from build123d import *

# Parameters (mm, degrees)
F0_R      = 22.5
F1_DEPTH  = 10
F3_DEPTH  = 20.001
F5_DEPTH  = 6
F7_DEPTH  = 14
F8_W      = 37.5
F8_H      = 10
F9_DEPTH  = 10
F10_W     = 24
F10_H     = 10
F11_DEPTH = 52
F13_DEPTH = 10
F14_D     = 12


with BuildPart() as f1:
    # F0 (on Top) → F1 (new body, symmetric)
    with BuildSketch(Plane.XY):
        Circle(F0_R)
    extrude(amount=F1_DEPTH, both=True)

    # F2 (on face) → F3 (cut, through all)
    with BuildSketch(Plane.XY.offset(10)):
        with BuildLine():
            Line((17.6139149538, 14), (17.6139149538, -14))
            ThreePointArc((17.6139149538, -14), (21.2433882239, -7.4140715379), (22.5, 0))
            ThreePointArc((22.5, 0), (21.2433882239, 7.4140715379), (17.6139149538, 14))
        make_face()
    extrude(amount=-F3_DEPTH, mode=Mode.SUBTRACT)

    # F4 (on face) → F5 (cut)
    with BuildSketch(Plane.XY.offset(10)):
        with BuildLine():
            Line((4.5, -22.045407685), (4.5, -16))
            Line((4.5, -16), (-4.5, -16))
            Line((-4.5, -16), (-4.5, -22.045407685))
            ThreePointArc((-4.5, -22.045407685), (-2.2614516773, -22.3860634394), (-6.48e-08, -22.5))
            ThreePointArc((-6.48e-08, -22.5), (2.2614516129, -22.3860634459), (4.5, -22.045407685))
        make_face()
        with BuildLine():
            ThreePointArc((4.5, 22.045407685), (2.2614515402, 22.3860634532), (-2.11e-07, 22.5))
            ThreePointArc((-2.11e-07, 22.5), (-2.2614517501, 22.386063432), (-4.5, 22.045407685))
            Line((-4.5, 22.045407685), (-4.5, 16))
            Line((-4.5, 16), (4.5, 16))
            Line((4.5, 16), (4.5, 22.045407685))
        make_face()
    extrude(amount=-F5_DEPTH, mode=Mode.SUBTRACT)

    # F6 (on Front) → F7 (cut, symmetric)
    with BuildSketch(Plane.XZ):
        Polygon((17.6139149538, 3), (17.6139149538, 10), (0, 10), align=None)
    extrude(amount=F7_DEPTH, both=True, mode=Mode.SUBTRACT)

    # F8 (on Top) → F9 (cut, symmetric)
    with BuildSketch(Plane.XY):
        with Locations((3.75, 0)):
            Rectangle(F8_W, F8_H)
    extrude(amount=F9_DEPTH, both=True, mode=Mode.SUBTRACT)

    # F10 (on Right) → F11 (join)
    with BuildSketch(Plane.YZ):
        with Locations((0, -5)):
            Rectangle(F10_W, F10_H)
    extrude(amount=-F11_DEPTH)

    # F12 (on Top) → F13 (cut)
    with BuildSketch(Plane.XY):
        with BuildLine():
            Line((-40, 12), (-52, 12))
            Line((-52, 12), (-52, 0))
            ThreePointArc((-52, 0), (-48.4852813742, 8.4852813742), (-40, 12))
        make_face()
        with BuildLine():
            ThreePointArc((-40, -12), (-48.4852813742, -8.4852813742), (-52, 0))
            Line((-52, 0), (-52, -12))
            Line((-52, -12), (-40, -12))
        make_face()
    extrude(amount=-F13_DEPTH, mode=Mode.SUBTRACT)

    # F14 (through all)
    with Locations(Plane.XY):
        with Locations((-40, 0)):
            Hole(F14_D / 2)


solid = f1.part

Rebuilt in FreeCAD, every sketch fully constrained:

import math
import FreeCAD as App
import Part
import Sketcher
from FreeCAD import Vector

doc = App.newDocument("Part")
body = doc.addObject("PartDesign::Body", "Body")

# Sketch on XY plane
sketch1 = body.newObject("Sketcher::SketchObject", "Sketch")
sketch1.AttachmentSupport = (doc.getObject("XY_Plane"), [""])
sketch1.MapMode = "FlatFace"
sketch1.addGeometry(Part.Circle(Vector(0, 0, 0), Vector(0, 0, 1), 22), False)
sketch1.addConstraint([
    Sketcher.Constraint("Coincident", 0, 3, -1, 1),
    Sketcher.Constraint("Diameter", 0, 45.0),
])
pad1 = body.newObject("PartDesign::Pad", "Pad")
pad1.Profile = sketch1
pad1.Length = 20
pad1.Midplane = True

# Sketch on XY plane
sketch2 = body.newObject("Sketcher::SketchObject", "Sketch001")
sketch2.AttachmentSupport = (doc.getObject("XY_Plane"), [""])
sketch2.MapMode = "FlatFace"
sketch2.AttachmentOffset = App.Placement(Vector(0, 0, 10), App.Rotation())
sketch2.addGeometry([
    Part.LineSegment(Vector(18, 14, 0), Vector(18, -14, 0)),
    Part.ArcOfCircle(Part.Circle(Vector(0, 0, 0), Vector(0, 0, 1), 22), math.radians(-38), math.radians(0)),
    Part.ArcOfCircle(Part.Circle(Vector(0, 0, 0), Vector(0, 0, 1), 22), math.radians(0), math.radians(38)),
], False)
sketch2.addConstraint([
    Sketcher.Constraint("Coincident", 0, 2, 1, 1),
    Sketcher.Constraint("Tangent", 1, 2, 2, 1),
    Sketcher.Constraint("Coincident", 2, 2, 0, 1),
    Sketcher.Constraint("Vertical", 0),
    Sketcher.Constraint("Coincident", 1, 3, -1, 1),
    Sketcher.Constraint("Equal", 1, 2),
    Sketcher.Constraint("PointOnObject", 1, 2, -1),
    Sketcher.Constraint("Radius", 1, 22.5),
    Sketcher.Constraint("DistanceY", 0, 2, 0, 1, 28.0),
])
pocket1 = body.newObject("PartDesign::Pocket", "Pocket")
pocket1.Profile = sketch2
pocket1.Type = "ThroughAll"

# Sketch on XY plane
sketch3 = body.newObject("Sketcher::SketchObject", "Sketch002")
sketch3.AttachmentSupport = (doc.getObject("XY_Plane"), [""])
sketch3.MapMode = "FlatFace"
sketch3.AttachmentOffset = App.Placement(Vector(0, 0, 10), App.Rotation())
sketch3.addGeometry([
    Part.LineSegment(Vector(4.5, -22, 0), Vector(4.5, -16, 0)),  # 0
    Part.LineSegment(Vector(4.5, -16, 0), Vector(-4.5, -16, 0)),  # 1
    Part.LineSegment(Vector(-4.5, -16, 0), Vector(-4.5, -22, 0)),  # 2
    Part.ArcOfCircle(Part.Circle(Vector(0, 0, 0), Vector(0, 0, 1), 22.5), math.radians(-101.54), math.radians(-90)),  # 3
    Part.ArcOfCircle(Part.Circle(Vector(0, 0, 0), Vector(0, 0, 1), 22.5), math.radians(-90), math.radians(-78.46)),  # 4
    Part.ArcOfCircle(Part.Circle(Vector(0, 0, 0), Vector(0, 0, 1), 22.5), math.radians(78), math.radians(102)),  # 5
    Part.LineSegment(Vector(-4.5, 22, 0), Vector(-4.5, 16, 0)),  # 6
    Part.LineSegment(Vector(-4.5, 16, 0), Vector(4.5, 16, 0)),  # 7
    Part.LineSegment(Vector(4.5, 16, 0), Vector(4.5, 22, 0)),  # 8
], False)
sketch3.addConstraint([
    Sketcher.Constraint("Coincident", 0, 2, 1, 1),
    Sketcher.Constraint("Coincident", 1, 2, 2, 1),
    Sketcher.Constraint("Coincident", 2, 2, 3, 1),
    Sketcher.Constraint("Tangent", 3, 2, 4, 1),
    Sketcher.Constraint("Coincident", 4, 2, 0, 1),
    Sketcher.Constraint("Coincident", 5, 2, 6, 1),
    Sketcher.Constraint("Coincident", 6, 2, 7, 1),
    Sketcher.Constraint("Coincident", 7, 2, 8, 1),
    Sketcher.Constraint("Coincident", 8, 2, 5, 1),
    Sketcher.Constraint("Vertical", 0),
    Sketcher.Constraint("Horizontal", 1),
    Sketcher.Constraint("Vertical", 2),
    Sketcher.Constraint("Vertical", 6),
    Sketcher.Constraint("Horizontal", 7),
    Sketcher.Constraint("Vertical", 8),
    Sketcher.Constraint("Coincident", 3, 3, -1, 1),
    Sketcher.Constraint("Coincident", 5, 3, -1, 1),
    Sketcher.Constraint("Equal", 3, 4),
    Sketcher.Constraint("Equal", 4, 5),
    Sketcher.Constraint("Symmetric", 0, 2, 6, 2, -1, 1),
    Sketcher.Constraint("PointOnObject", 3, 2, -2),
    Sketcher.Constraint("Horizontal", 2, 2, 4, 2),
    Sketcher.Constraint("Horizontal", 5, 2, 8, 2),
    Sketcher.Constraint("Radius", 3, 22.5),
    Sketcher.Constraint("DistanceX", 1, 2, 1, 1, 9.0),
    Sketcher.Constraint("DistanceY", 0, 2, -1, 1, 16.0),
])
pocket2 = body.newObject("PartDesign::Pocket", "Pocket001")
pocket2.Profile = sketch3
pocket2.Length = 6

# Sketch on XZ plane
sketch4 = body.newObject("Sketcher::SketchObject", "Sketch003")
sketch4.AttachmentSupport = (doc.getObject("XZ_Plane"), [""])
sketch4.MapMode = "FlatFace"
sketch4.addGeometry([
    Part.LineSegment(Vector(18, 3, 0), Vector(18, 10, 0)),
    Part.LineSegment(Vector(18, 10, 0), Vector(0, 10, 0)),
    Part.LineSegment(Vector(0, 10, 0), Vector(18, 3, 0)),
], False)
sketch4.addConstraint([
    Sketcher.Constraint("Coincident", 0, 2, 1, 1),
    Sketcher.Constraint("Coincident", 1, 2, 2, 1),
    Sketcher.Constraint("Coincident", 2, 2, 0, 1),
    Sketcher.Constraint("Vertical", 0),
    Sketcher.Constraint("Horizontal", 1),
    Sketcher.Constraint("PointOnObject", 1, 2, -2),
    Sketcher.Constraint("DistanceY", 0, 1, 0, 2, 7.0),
    Sketcher.Constraint("DistanceY", -1, 1, 0, 2, 10.0),
    Sketcher.Constraint("Distance", 2, 18.953891),
])
pocket3 = body.newObject("PartDesign::Pocket", "Pocket002")
pocket3.Profile = sketch4
pocket3.Length = 28
pocket3.Midplane = True

# Sketch on XY plane
sketch5 = body.newObject("Sketcher::SketchObject", "Sketch004")
sketch5.AttachmentSupport = (doc.getObject("XY_Plane"), [""])
sketch5.MapMode = "FlatFace"
sketch5.addGeometry([
    Part.LineSegment(Vector(-15, 5, 0), Vector(-15, -5, 0)),
    Part.LineSegment(Vector(-15, -5, 0), Vector(22, -5, 0)),
    Part.LineSegment(Vector(22, -5, 0), Vector(22, 5, 0)),
    Part.LineSegment(Vector(22, 5, 0), Vector(-15, 5, 0)),
], False)
sketch5.addConstraint([
    Sketcher.Constraint("Coincident", 0, 2, 1, 1),
    Sketcher.Constraint("Coincident", 1, 2, 2, 1),
    Sketcher.Constraint("Coincident", 2, 2, 3, 1),
    Sketcher.Constraint("Coincident", 3, 2, 0, 1),
    Sketcher.Constraint("Vertical", 0),
    Sketcher.Constraint("Horizontal", 1),
    Sketcher.Constraint("Vertical", 2),
    Sketcher.Constraint("Horizontal", 3),
    Sketcher.Constraint("DistanceY", 0, 2, 0, 1, 10.0),
    Sketcher.Constraint("DistanceX", 1, 1, 1, 2, 37.5),
    Sketcher.Constraint("DistanceX", 0, 2, -1, 1, 15.0),
    Sketcher.Constraint("DistanceY", 0, 2, -1, 1, 5.0),
])
pocket4 = body.newObject("PartDesign::Pocket", "Pocket003")
pocket4.Profile = sketch5
pocket4.Length = 20
pocket4.Midplane = True

# Sketch on YZ plane
sketch6 = body.newObject("Sketcher::SketchObject", "Sketch005")
sketch6.AttachmentSupport = (doc.getObject("YZ_Plane"), [""])
sketch6.MapMode = "FlatFace"
sketch6.addGeometry([
    Part.LineSegment(Vector(-12, 0, 0), Vector(-12, -10, 0)),
    Part.LineSegment(Vector(-12, -10, 0), Vector(12, -10, 0)),
    Part.LineSegment(Vector(12, -10, 0), Vector(12, 0, 0)),
    Part.LineSegment(Vector(12, 0, 0), Vector(-12, 0, 0)),
], False)
sketch6.addConstraint([
    Sketcher.Constraint("Coincident", 0, 2, 1, 1),
    Sketcher.Constraint("Coincident", 1, 2, 2, 1),
    Sketcher.Constraint("Coincident", 2, 2, 3, 1),
    Sketcher.Constraint("Coincident", 3, 2, 0, 1),
    Sketcher.Constraint("Vertical", 0),
    Sketcher.Constraint("Horizontal", 1),
    Sketcher.Constraint("Vertical", 2),
    Sketcher.Constraint("Horizontal", 3),
    Sketcher.Constraint("Symmetric", 2, 2, 3, 2, -1, 1),
    Sketcher.Constraint("DistanceX", 1, 1, 1, 2, 24.0),
    Sketcher.Constraint("DistanceY", 0, 2, 0, 1, 10.0),
])
pad2 = body.newObject("PartDesign::Pad", "Pad001")
pad2.Profile = sketch6
pad2.Length = 52
pad2.Reversed = True

# Sketch on XY plane
sketch7 = body.newObject("Sketcher::SketchObject", "Sketch006")
sketch7.AttachmentSupport = (doc.getObject("XY_Plane"), [""])
sketch7.MapMode = "FlatFace"
sketch7.addGeometry([
    Part.LineSegment(Vector(-40, 12, 0), Vector(-52, 12, 0)),  # 0
    Part.LineSegment(Vector(-52, 12, 0), Vector(-52, 0, 0)),  # 1
    Part.ArcOfCircle(Part.Circle(Vector(-40, 0, 0), Vector(0, 0, 1), 12), math.radians(90), math.radians(180)),  # 2
    Part.ArcOfCircle(Part.Circle(Vector(-40, 0, 0), Vector(0, 0, 1), 12), math.radians(180), math.radians(270)),  # 3
    Part.LineSegment(Vector(-52, 0, 0), Vector(-52, -12, 0)),  # 4
    Part.LineSegment(Vector(-52, -12, 0), Vector(-40, -12, 0)),  # 5
], False)
sketch7.addConstraint([
    Sketcher.Constraint("Coincident", 0, 2, 1, 1),
    Sketcher.Constraint("Tangent", 1, 2, 2, 2),
    Sketcher.Constraint("Tangent", 2, 1, 0, 1),
    Sketcher.Constraint("Tangent", 3, 1, 4, 1),
    Sketcher.Constraint("Coincident", 4, 2, 5, 1),
    Sketcher.Constraint("Tangent", 5, 2, 3, 2),
    Sketcher.Constraint("Horizontal", 0),
    Sketcher.Constraint("Vertical", 1),
    Sketcher.Constraint("Vertical", 4),
    Sketcher.Constraint("Horizontal", 5),
    Sketcher.Constraint("Coincident", 3, 3, 2, 3),
    Sketcher.Constraint("Equal", 2, 3),
    Sketcher.Constraint("PointOnObject", 2, 3, -1),
    Sketcher.Constraint("Radius", 2, 12.0),
    Sketcher.Constraint("DistanceX", 2, 3, -1, 1, 40.0),
])
pocket5 = body.newObject("PartDesign::Pocket", "Pocket004")
pocket5.Profile = sketch7
pocket5.Length = 10

# Sketch on XY plane
sketch8 = body.newObject("Sketcher::SketchObject", "Sketch007")
sketch8.AttachmentSupport = (doc.getObject("XY_Plane"), [""])
sketch8.MapMode = "FlatFace"
sketch8.addGeometry(Part.Circle(Vector(-40, 0, 0), Vector(0, 0, 1), 6), False)
sketch8.addConstraint([
    Sketcher.Constraint("PointOnObject", 0, 3, -1),
    Sketcher.Constraint("Diameter", 0, 12.0),
    Sketcher.Constraint("DistanceX", 0, 3, -1, 1, 40.0),
])
doc.recompute()
hole = body.newObject("PartDesign::Hole", "Hole")
hole.Profile = sketch8
hole.ThreadType = "None"
hole.Diameter = 12
hole.DepthType = "ThroughAll"

doc.recompute()
